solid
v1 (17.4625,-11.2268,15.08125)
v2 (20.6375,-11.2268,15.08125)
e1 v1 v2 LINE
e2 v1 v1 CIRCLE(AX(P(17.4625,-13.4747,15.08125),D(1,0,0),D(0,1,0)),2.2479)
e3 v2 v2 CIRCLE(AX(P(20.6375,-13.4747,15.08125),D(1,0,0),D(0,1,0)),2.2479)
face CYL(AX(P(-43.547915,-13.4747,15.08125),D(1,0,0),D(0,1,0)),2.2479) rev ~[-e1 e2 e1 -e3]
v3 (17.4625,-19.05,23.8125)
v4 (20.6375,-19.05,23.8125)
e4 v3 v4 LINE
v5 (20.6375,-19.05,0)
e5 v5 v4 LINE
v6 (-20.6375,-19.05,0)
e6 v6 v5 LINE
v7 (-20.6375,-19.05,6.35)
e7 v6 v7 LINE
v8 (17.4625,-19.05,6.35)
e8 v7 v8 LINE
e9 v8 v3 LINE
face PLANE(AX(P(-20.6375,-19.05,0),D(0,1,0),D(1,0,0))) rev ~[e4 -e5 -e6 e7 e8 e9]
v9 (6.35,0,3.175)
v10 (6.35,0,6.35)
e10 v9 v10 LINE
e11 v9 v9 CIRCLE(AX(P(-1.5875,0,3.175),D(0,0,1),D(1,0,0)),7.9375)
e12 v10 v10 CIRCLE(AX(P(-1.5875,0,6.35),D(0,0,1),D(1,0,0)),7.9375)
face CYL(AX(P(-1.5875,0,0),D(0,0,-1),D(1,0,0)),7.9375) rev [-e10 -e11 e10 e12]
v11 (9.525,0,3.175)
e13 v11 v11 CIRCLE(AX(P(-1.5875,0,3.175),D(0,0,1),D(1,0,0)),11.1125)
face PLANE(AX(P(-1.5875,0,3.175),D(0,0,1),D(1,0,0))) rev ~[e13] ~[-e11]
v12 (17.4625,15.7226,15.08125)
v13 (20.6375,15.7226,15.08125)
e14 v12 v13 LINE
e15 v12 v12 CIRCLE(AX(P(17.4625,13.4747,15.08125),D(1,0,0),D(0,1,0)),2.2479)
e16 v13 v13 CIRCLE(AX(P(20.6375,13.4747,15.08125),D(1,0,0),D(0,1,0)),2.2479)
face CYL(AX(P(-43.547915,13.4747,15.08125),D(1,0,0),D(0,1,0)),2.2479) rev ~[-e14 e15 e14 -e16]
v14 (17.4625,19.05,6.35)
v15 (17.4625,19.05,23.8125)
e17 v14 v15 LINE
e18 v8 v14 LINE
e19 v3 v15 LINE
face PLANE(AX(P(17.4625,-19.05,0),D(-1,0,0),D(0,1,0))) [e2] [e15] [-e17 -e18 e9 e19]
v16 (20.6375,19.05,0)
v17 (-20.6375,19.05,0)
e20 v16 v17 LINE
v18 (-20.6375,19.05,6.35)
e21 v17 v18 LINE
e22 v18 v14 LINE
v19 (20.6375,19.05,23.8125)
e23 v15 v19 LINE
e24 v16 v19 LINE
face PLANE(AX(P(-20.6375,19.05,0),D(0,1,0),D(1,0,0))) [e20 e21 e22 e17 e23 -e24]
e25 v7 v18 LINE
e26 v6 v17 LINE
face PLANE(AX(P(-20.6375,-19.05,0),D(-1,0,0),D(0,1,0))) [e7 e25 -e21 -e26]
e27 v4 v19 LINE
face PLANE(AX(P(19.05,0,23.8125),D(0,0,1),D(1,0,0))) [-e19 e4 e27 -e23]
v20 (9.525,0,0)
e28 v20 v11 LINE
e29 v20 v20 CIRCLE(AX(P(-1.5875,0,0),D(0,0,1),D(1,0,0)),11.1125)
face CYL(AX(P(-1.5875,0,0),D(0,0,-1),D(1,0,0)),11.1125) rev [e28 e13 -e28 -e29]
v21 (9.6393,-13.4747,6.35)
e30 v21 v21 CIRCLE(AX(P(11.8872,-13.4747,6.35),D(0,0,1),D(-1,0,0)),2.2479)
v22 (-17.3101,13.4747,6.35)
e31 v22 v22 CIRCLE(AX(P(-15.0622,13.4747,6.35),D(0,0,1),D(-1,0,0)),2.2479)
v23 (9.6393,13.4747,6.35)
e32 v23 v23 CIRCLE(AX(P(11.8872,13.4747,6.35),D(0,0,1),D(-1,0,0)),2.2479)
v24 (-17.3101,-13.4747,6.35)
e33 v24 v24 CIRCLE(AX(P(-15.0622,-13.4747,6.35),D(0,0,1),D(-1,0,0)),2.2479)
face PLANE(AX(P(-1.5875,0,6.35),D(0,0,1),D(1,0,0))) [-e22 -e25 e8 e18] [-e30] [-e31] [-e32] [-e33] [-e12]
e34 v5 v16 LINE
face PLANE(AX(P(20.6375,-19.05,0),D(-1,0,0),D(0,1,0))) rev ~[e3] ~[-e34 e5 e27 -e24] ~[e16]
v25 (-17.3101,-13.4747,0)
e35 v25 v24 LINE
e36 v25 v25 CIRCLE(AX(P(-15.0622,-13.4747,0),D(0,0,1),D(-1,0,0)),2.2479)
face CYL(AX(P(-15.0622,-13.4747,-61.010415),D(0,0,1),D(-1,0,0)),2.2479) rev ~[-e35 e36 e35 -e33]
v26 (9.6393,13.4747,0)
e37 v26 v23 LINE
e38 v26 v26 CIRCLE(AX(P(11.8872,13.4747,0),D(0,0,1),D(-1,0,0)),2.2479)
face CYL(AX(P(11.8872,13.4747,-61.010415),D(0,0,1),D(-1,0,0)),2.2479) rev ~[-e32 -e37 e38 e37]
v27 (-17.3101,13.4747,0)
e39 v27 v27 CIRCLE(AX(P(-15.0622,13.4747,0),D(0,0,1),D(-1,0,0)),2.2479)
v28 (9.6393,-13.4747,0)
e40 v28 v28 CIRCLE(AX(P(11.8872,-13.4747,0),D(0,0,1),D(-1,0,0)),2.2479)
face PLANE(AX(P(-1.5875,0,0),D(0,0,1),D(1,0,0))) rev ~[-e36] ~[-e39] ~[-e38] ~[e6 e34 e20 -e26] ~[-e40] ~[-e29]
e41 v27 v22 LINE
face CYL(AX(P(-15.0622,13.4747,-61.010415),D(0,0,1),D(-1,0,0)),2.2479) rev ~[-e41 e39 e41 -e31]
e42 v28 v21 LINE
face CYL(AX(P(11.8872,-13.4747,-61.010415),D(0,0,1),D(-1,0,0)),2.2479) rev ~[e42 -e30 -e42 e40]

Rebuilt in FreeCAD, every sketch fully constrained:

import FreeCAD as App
import Part
import Sketcher
from FreeCAD import Vector
Q = App.Units.Quantity


def add_polygon(sketch, points):
    """Adds a closed chain of lines whose ends are joined by coincident constraints."""
    first, n = sketch.GeometryCount, len(points)
    for a, b in zip(points, points[1:] + points[:1]):
        sketch.addGeometry(Part.LineSegment(App.Vector(*a, 0), App.Vector(*b, 0)), False)
    for i in range(n):
        sketch.addConstraint(Sketcher.Constraint("Coincident", first + i, 2, first + (i + 1) % n, 1))

doc = App.newDocument("Part")
body = doc.addObject("PartDesign::Body", "Body")

# Sketch on XY plane
sketch1 = body.newObject("Sketcher::SketchObject", "Sketch")
sketch1.AttachmentSupport = (doc.getObject("XY_Plane"), [""])
sketch1.MapMode = "FlatFace"
add_polygon(sketch1, [(17.5, 19.1), (17.5, -19.1), (20.6, -19.1), (20.6, 19.1)])  # lines 0-3
sketch1.addConstraint(Sketcher.Constraint("Vertical", 0))
sketch1.addConstraint(Sketcher.Constraint("Horizontal", 1))
sketch1.addConstraint(Sketcher.Constraint("Vertical", 2))
sketch1.addConstraint(Sketcher.Constraint("Horizontal", 3))
sketch1.addConstraint(Sketcher.Constraint("DistanceY", 0, 2, 0, 1, Q("1.5 in")))
sketch1.addConstraint(Sketcher.Constraint("DistanceX", 1, 1, 1, 2, Q("0.125 in")))
sketch1.addConstraint(Sketcher.Constraint("DistanceY", 0, 2, -1, 1, Q("0.75 in")))
sketch1.addConstraint(Sketcher.Constraint("DistanceX", -1, 1, 0, 2, Q("0.6875 in")))
pad1 = body.newObject("PartDesign::Pad", "Pad")
pad1.Profile = sketch1
pad1.Length = Q("0.9375 in")

# Sketch on XY plane
sketch2 = body.newObject("Sketcher::SketchObject", "Sketch001")
sketch2.AttachmentSupport = (doc.getObject("XY_Plane"), [""])
sketch2.MapMode = "FlatFace"
add_polygon(sketch2, [(-21, 19), (-21, -19), (17, -19), (17, 19)])  # lines 0-3
sketch2.addGeometry(Part.Circle(Vector(-2, 0, 0), Vector(0, 0, 1), 8), False)  # 4
sketch2.addConstraint(Sketcher.Constraint("Vertical", 0))
sketch2.addConstraint(Sketcher.Constraint("Horizontal", 1))
sketch2.addConstraint(Sketcher.Constraint("Vertical", 2))
sketch2.addConstraint(Sketcher.Constraint("Horizontal", 3))
sketch2.addConstraint(Sketcher.Constraint("PointOnObject", 4, 3, -1))
sketch2.addConstraint(Sketcher.Constraint("Equal", 3, 0))
sketch2.addConstraint(Sketcher.Constraint("Diameter", 4, Q("0.625 in")))
sketch2.addConstraint(Sketcher.Constraint("DistanceX", 1, 1, 1, 2, Q("1.5 in")))
sketch2.addConstraint(Sketcher.Constraint("DistanceY", 0, 2, -1, 1, Q("0.75 in")))
sketch2.addConstraint(Sketcher.Constraint("DistanceX", 0, 2, 4, 3, Q("0.75 in")))
sketch2.addConstraint(Sketcher.Constraint("DistanceX", 4, 3, -1, 1, Q("0.0625 in")))
pad2 = body.newObject("PartDesign::Pad", "Pad001")
pad2.Profile = sketch2
pad2.Length = Q("0.25 in")

# Sketch on XY plane
sketch3 = body.newObject("Sketcher::SketchObject", "Sketch002")
sketch3.AttachmentSupport = (doc.getObject("XY_Plane"), [""])
sketch3.MapMode = "FlatFace"
sketch3.addGeometry(Part.Circle(Vector(-15.1, -13.5, 0), Vector(0, 0, 1), 2.2), False)
sketch3.addConstraint(Sketcher.Constraint("Diameter", 0, Q("0.177 in")))
sketch3.addConstraint(Sketcher.Constraint("DistanceX", 0, 3, -1, 1, Q("0.593 in")))
sketch3.addConstraint(Sketcher.Constraint("DistanceY", 0, 3, -1, 1, Q("0.5305 in")))
doc.recompute()
hole = body.newObject("PartDesign::Hole", "Hole")
hole.Profile = sketch3
hole.ThreadType = "None"
hole.Diameter = Q("0.177 in")
hole.DepthType = "ThroughAll"
hole.Reversed = True

# Sketch on XY plane
sketch4 = body.newObject("Sketcher::SketchObject", "Sketch003")
sketch4.AttachmentSupport = (doc.getObject("XY_Plane"), [""])
sketch4.MapMode = "FlatFace"
sketch4.addGeometry(Part.Circle(Vector(-15.1, 13.5, 0), Vector(0, 0, 1), 2.2), False)
sketch4.addConstraint(Sketcher.Constraint("Diameter", 0, Q("0.177 in")))
sketch4.addConstraint(Sketcher.Constraint("DistanceX", 0, 3, -1, 1, Q("0.593 in")))
sketch4.addConstraint(Sketcher.Constraint("DistanceY", -1, 1, 0, 3, Q("0.5305 in")))
doc.recompute()
hole2 = body.newObject("PartDesign::Hole", "Hole001")
hole2.Profile = sketch4
hole2.ThreadType = "None"
hole2.Diameter = Q("0.177 in")
hole2.DepthType = "ThroughAll"
hole2.Reversed = True

# Sketch on XY plane
sketch5 = body.newObject("Sketcher::SketchObject", "Sketch004")
sketch5.AttachmentSupport = (doc.getObject("XY_Plane"), [""])
sketch5.MapMode = "FlatFace"
sketch5.addGeometry(Part.Circle(Vector(11.9, 13.5, 0), Vector(0, 0, 1), 2.2), False)
sketch5.addConstraint(Sketcher.Constraint("Diameter", 0, Q("0.177 in")))
sketch5.addConstraint(Sketcher.Constraint("DistanceX", -1, 1, 0, 3, Q("0.468 in")))
sketch5.addConstraint(Sketcher.Constraint("DistanceY", -1, 1, 0, 3, Q("0.5305 in")))
doc.recompute()
hole3 = body.newObject("PartDesign::Hole", "Hole002")
hole3.Profile = sketch5
hole3.ThreadType = "None"
hole3.Diameter = Q("0.177 in")
hole3.DepthType = "ThroughAll"
hole3.Reversed = True

# Sketch on XY plane
sketch6 = body.newObject("Sketcher::SketchObject", "Sketch005")
sketch6.AttachmentSupport = (doc.getObject("XY_Plane"), [""])
sketch6.MapMode = "FlatFace"
sketch6.addGeometry(Part.Circle(Vector(11.9, -13.5, 0), Vector(0, 0, 1), 2.2), False)
sketch6.addConstraint(Sketcher.Constraint("Diameter", 0, Q("0.177 in")))
sketch6.addConstraint(Sketcher.Constraint("DistanceX", -1, 1, 0, 3, Q("0.468 in")))
sketch6.addConstraint(Sketcher.Constraint("DistanceY", 0, 3, -1, 1, Q("0.5305 in")))
doc.recompute()
hole4 = body.newObject("PartDesign::Hole", "Hole003")
hole4.Profile = sketch6
hole4.ThreadType = "None"
hole4.Diameter = Q("0.177 in")
hole4.DepthType = "ThroughAll"
hole4.Reversed = True

# Sketch on YZ plane
sketch7 = body.newObject("Sketcher::SketchObject", "Sketch006")
sketch7.AttachmentSupport = (doc.getObject("YZ_Plane"), [""])
sketch7.MapMode = "FlatFace"
sketch7.AttachmentOffset = App.Placement(Vector(0, 0, 0.6875 * 25.4), App.Rotation())
sketch7.addGeometry(Part.Circle(Vector(13.5, 15.1, 0), Vector(0, 0, 1), 2.2), False)
sketch7.addConstraint(Sketcher.Constraint("Diameter", 0, Q("0.177 in")))
sketch7.addConstraint(Sketcher.Constraint("DistanceY", -1, 1, 0, 3, Q("0.59375 in")))
sketch7.addConstraint(Sketcher.Constraint("DistanceX", -1, 1, 0, 3, Q("0.5305 in")))
doc.recompute()
hole5 = body.newObject("PartDesign::Hole", "Hole004")
hole5.Profile = sketch7
hole5.ThreadType = "None"
hole5.Diameter = Q("0.177 in")
hole5.DepthType = "ThroughAll"
hole5.Reversed = True

# Sketch on YZ plane
sketch8 = body.newObject("Sketcher::SketchObject", "Sketch007")
sketch8.AttachmentSupport = (doc.getObject("YZ_Plane"), [""])
sketch8.MapMode = "FlatFace"
sketch8.AttachmentOffset = App.Placement(Vector(0, 0, 0.6875 * 25.4), App.Rotation())
sketch8.addGeometry(Part.Circle(Vector(-13.5, 15.1, 0), Vector(0, 0, 1), 2.2), False)
sketch8.addConstraint(Sketcher.Constraint("Diameter", 0, Q("0.177 in")))
sketch8.addConstraint(Sketcher.Constraint("DistanceY", -1, 1, 0, 3, Q("0.59375 in")))
sketch8.addConstraint(Sketcher.Constraint("DistanceX", 0, 3, -1, 1, Q("0.5305 in")))
doc.recompute()
hole6 = body.newObject("PartDesign::Hole", "Hole005")
hole6.Profile = sketch8
hole6.ThreadType = "None"
hole6.Diameter = Q("0.177 in")
hole6.DepthType = "ThroughAll"
hole6.Reversed = True

# Sketch on XY plane
sketch9 = body.newObject("Sketcher::SketchObject", "Sketch008")
sketch9.AttachmentSupport = (doc.getObject("XY_Plane"), [""])
sketch9.MapMode = "FlatFace"
sketch9.addGeometry(Part.Circle(Vector(-2, 0, 0), Vector(0, 0, 1), 11), False)
sketch9.addGeometry(Part.Circle(Vector(-2, 0, 0), Vector(0, 0, 1), 8), False)
sketch9.addConstraint(Sketcher.Constraint("Coincident", 1, 3, 0, 3))
sketch9.addConstraint(Sketcher.Constraint("PointOnObject", 0, 3, -1))
sketch9.addConstraint(Sketcher.Constraint("Diameter", 0, Q("0.875 in")))
sketch9.addConstraint(Sketcher.Constraint("Diameter", 1, Q("0.625 in")))
sketch9.addConstraint(Sketcher.Constraint("DistanceX", 0, 3, -1, 1, Q("0.0625 in")))
pocket1 = body.newObject("PartDesign::Pocket", "Pocket")
pocket1.Profile = sketch9
pocket1.Length = Q("0.125 in")
pocket1.Reversed = True

doc.recompute()
